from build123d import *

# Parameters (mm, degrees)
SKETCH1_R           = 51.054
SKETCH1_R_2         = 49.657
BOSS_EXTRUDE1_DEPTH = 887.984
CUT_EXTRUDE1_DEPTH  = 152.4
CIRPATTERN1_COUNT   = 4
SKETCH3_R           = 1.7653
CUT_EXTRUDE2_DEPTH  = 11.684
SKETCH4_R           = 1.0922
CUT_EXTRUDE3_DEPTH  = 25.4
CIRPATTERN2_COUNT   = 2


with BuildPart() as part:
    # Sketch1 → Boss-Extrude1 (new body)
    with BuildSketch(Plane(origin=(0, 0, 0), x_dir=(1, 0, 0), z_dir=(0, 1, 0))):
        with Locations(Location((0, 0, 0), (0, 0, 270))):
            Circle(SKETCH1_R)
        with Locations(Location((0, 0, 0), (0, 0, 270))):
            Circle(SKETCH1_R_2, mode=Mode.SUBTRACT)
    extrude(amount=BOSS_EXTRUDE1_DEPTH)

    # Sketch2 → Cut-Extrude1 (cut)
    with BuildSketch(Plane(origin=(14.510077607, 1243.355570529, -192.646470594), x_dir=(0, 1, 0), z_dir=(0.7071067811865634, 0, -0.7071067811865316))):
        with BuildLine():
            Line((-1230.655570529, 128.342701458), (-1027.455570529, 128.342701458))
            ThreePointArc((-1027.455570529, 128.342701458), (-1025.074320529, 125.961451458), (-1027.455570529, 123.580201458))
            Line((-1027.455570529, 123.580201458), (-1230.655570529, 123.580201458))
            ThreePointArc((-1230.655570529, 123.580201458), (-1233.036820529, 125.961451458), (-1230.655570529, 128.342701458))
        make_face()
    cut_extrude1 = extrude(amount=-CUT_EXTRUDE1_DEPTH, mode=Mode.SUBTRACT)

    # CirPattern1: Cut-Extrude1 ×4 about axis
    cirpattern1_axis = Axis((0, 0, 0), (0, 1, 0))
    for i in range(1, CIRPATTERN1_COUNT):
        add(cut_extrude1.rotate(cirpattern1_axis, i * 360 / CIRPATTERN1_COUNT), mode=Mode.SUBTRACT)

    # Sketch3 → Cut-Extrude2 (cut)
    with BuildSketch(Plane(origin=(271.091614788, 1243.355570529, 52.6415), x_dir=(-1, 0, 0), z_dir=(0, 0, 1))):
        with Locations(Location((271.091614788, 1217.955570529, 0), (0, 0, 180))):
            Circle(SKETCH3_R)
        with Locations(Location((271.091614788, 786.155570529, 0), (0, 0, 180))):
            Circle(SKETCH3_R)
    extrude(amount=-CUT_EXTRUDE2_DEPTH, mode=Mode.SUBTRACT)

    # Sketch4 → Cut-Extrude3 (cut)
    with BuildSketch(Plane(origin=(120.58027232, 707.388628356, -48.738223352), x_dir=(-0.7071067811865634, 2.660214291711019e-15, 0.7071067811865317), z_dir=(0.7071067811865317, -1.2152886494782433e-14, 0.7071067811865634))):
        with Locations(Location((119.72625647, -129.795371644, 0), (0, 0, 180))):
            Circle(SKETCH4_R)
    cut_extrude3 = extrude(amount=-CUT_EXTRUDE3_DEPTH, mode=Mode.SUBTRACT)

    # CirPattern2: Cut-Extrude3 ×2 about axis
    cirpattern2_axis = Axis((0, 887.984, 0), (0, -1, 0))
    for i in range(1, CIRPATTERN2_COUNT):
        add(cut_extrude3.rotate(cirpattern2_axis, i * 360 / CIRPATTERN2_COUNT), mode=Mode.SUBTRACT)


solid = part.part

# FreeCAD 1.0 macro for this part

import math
import FreeCAD as App
import Part
import Sketcher
from FreeCAD import Vector
Q = App.Units.Quantity

doc = App.newDocument("Part")
body = doc.addObject("PartDesign::Body", "Body")

# Sketch on XZ plane
sketch1 = doc.addObject("Sketcher::SketchObject", "Sketch")
body.addObject(sketch1)
sketch1.AttachmentSupport = (doc.XZ_Plane, [""])
sketch1.MapMode = "FlatFace"
sketch1.addGeometry(Part.Circle(Vector(0, 0, 0), Vector(0, 0, 1), 51), False)
sketch1.addGeometry(Part.Circle(Vector(0, 0, 0), Vector(0, 0, 1), 50), False)
sketch1.addConstraint(Sketcher.Constraint("Coincident", 0, 3, -1, 1))
sketch1.addConstraint(Sketcher.Constraint("Coincident", 1, 3, -1, 1))
sketch1.addConstraint(Sketcher.Constraint("Diameter", 0, Q("4.02 in")))
sketch1.addConstraint(Sketcher.Constraint("Diameter", 1, Q("3.91 in")))
pad1 = doc.addObject("PartDesign::Pad", "Pad")
body.addObject(pad1)
pad1.Profile = sketch1
pad1.Length = Q("34.96 in")
pad1.Reversed = True

# Sketch on an angled plane
sketch2 = doc.addObject("Sketcher::SketchObject", "Sketch001")
body.addObject(sketch2)
sketch2.Placement = App.Placement(Vector(14.510078, 1243.355571, -192.646471), App.Rotation(Vector(0, 1, 0), Vector(0.707106781, 0, 0.707106781), Vector(0.707106781, 0, -0.707106781), "ZXY"))
sketch2.addGeometry(Part.LineSegment(Vector(-1027.5, 128.3, 0), Vector(-1230.7, 128.3, 0)), False)
sketch2.addGeometry(Part.ArcOfCircle(Part.Circle(Vector(-1230.7, 126, 0), Vector(0, 0, 1), 2.4), math.radians(90), math.radians(270)), False)
sketch2.addGeometry(Part.LineSegment(Vector(-1230.7, 123.6, 0), Vector(-1027.5, 123.6, 0)), False)
sketch2.addGeometry(Part.ArcOfCircle(Part.Circle(Vector(-1027.5, 126, 0), Vector(0, 0, 1), 2.4), math.radians(-90), math.radians(90)), False)
sketch2.addConstraint(Sketcher.Constraint("Tangent", 0, 2, 1, 1))
sketch2.addConstraint(Sketcher.Constraint("Tangent", 1, 2, 2, 1))
sketch2.addConstraint(Sketcher.Constraint("Tangent", 2, 2, 3, 1))
sketch2.addConstraint(Sketcher.Constraint("Tangent", 3, 2, 0, 1))
sketch2.addConstraint(Sketcher.Constraint("Horizontal", 0))
sketch2.addConstraint(Sketcher.Constraint("Horizontal", 2))
sketch2.addConstraint(Sketcher.Constraint("DistanceX", 0, 2, 0, 1, Q("8 in")))
sketch2.addConstraint(Sketcher.Constraint("Radius", 1, Q("0.09375 in")))
sketch2.addConstraint(Sketcher.Constraint("DistanceY", -1, 1, 0, 2, Q("128.342701 mm")))
sketch2.addConstraint(Sketcher.Constraint("DistanceX", 1, 3, -1, 1, Q("1230.655571 mm")))
pocket1 = doc.addObject("PartDesign::Pocket", "Pocket")
body.addObject(pocket1)
pocket1.Profile = sketch2
pocket1.Length = Q("6 in")
doc.recompute()

polarpattern = doc.addObject("PartDesign::PolarPattern", "PolarPattern")
body.addObject(polarpattern)
polarpattern.Originals = [pocket1]
polarpattern.Axis = (doc.Y_Axis, [""])
polarpattern.Angle = 360
polarpattern.Occurrences = 4
body.Tip = polarpattern

# Sketch on XY plane
sketch3 = doc.addObject("Sketcher::SketchObject", "Sketch002")
body.addObject(sketch3)
sketch3.AttachmentSupport = (doc.XY_Plane, [""])
sketch3.MapMode = "FlatFace"
sketch3.AttachmentOffset = App.Placement(Vector(0, 0, 2.0725 * 25.4), App.Rotation())
sketch3.addGeometry(Part.Circle(Vector(0, 25.4, 0), Vector(0, 0, 1), 1.8), False)
sketch3.addGeometry(Part.Circle(Vector(0, 457.2, 0), Vector(0, 0, 1), 1.8), False)
sketch3.addConstraint(Sketcher.Constraint("Equal", 0, 1))
sketch3.addConstraint(Sketcher.Constraint("PointOnObject", 0, 3, -2))
sketch3.addConstraint(Sketcher.Constraint("PointOnObject", 1, 3, -2))
sketch3.addConstraint(Sketcher.Constraint("Diameter", 0, Q("0.139 in")))
sketch3.addConstraint(Sketcher.Constraint("DistanceY", -1, 1, 0, 3, Q("1 in")))
sketch3.addConstraint(Sketcher.Constraint("DistanceY", -1, 1, 1, 3, Q("18 in")))
pocket2 = doc.addObject("PartDesign::Pocket", "Pocket001")
body.addObject(pocket2)
pocket2.Profile = sketch3
pocket2.Length = Q("0.46 in")

# Sketch on an angled plane
sketch4 = doc.addObject("Sketcher::SketchObject", "Sketch003")
body.addObject(sketch4)
sketch4.Placement = App.Placement(Vector(120.580272, 707.388628, -48.738223), App.Rotation(Vector(-0.707106781, 0, 0.707106781), Vector(0, -0.999999999, 0), Vector(0.707106781, 0, 0.707106781), "ZXY"))
sketch4.addGeometry(Part.Circle(Vector(119.7, -129.8, 0), Vector(0, 0, 1), 1.1), False)
sketch4.addConstraint(Sketcher.Constraint("Diameter", 0, Q("0.086 in")))
sketch4.addConstraint(Sketcher.Constraint("DistanceY", 0, 3, -1, 1, Q("129.795372 mm")))
sketch4.addConstraint(Sketcher.Constraint("DistanceX", -1, 1, 0, 3, Q("119.726256 mm")))
pocket3 = doc.addObject("PartDesign::Pocket", "Pocket002")
body.addObject(pocket3)
pocket3.Profile = sketch4
pocket3.Length = Q("1 in")
doc.recompute()

polarpattern2 = doc.addObject("PartDesign::PolarPattern", "PolarPattern001")
body.addObject(polarpattern2)
polarpattern2.Originals = [pocket3]
polarpattern2.Axis = (doc.Y_Axis, [""])
polarpattern2.Angle = 360
polarpattern2.Occurrences = 2
body.Tip = polarpattern2

doc.recompute()
